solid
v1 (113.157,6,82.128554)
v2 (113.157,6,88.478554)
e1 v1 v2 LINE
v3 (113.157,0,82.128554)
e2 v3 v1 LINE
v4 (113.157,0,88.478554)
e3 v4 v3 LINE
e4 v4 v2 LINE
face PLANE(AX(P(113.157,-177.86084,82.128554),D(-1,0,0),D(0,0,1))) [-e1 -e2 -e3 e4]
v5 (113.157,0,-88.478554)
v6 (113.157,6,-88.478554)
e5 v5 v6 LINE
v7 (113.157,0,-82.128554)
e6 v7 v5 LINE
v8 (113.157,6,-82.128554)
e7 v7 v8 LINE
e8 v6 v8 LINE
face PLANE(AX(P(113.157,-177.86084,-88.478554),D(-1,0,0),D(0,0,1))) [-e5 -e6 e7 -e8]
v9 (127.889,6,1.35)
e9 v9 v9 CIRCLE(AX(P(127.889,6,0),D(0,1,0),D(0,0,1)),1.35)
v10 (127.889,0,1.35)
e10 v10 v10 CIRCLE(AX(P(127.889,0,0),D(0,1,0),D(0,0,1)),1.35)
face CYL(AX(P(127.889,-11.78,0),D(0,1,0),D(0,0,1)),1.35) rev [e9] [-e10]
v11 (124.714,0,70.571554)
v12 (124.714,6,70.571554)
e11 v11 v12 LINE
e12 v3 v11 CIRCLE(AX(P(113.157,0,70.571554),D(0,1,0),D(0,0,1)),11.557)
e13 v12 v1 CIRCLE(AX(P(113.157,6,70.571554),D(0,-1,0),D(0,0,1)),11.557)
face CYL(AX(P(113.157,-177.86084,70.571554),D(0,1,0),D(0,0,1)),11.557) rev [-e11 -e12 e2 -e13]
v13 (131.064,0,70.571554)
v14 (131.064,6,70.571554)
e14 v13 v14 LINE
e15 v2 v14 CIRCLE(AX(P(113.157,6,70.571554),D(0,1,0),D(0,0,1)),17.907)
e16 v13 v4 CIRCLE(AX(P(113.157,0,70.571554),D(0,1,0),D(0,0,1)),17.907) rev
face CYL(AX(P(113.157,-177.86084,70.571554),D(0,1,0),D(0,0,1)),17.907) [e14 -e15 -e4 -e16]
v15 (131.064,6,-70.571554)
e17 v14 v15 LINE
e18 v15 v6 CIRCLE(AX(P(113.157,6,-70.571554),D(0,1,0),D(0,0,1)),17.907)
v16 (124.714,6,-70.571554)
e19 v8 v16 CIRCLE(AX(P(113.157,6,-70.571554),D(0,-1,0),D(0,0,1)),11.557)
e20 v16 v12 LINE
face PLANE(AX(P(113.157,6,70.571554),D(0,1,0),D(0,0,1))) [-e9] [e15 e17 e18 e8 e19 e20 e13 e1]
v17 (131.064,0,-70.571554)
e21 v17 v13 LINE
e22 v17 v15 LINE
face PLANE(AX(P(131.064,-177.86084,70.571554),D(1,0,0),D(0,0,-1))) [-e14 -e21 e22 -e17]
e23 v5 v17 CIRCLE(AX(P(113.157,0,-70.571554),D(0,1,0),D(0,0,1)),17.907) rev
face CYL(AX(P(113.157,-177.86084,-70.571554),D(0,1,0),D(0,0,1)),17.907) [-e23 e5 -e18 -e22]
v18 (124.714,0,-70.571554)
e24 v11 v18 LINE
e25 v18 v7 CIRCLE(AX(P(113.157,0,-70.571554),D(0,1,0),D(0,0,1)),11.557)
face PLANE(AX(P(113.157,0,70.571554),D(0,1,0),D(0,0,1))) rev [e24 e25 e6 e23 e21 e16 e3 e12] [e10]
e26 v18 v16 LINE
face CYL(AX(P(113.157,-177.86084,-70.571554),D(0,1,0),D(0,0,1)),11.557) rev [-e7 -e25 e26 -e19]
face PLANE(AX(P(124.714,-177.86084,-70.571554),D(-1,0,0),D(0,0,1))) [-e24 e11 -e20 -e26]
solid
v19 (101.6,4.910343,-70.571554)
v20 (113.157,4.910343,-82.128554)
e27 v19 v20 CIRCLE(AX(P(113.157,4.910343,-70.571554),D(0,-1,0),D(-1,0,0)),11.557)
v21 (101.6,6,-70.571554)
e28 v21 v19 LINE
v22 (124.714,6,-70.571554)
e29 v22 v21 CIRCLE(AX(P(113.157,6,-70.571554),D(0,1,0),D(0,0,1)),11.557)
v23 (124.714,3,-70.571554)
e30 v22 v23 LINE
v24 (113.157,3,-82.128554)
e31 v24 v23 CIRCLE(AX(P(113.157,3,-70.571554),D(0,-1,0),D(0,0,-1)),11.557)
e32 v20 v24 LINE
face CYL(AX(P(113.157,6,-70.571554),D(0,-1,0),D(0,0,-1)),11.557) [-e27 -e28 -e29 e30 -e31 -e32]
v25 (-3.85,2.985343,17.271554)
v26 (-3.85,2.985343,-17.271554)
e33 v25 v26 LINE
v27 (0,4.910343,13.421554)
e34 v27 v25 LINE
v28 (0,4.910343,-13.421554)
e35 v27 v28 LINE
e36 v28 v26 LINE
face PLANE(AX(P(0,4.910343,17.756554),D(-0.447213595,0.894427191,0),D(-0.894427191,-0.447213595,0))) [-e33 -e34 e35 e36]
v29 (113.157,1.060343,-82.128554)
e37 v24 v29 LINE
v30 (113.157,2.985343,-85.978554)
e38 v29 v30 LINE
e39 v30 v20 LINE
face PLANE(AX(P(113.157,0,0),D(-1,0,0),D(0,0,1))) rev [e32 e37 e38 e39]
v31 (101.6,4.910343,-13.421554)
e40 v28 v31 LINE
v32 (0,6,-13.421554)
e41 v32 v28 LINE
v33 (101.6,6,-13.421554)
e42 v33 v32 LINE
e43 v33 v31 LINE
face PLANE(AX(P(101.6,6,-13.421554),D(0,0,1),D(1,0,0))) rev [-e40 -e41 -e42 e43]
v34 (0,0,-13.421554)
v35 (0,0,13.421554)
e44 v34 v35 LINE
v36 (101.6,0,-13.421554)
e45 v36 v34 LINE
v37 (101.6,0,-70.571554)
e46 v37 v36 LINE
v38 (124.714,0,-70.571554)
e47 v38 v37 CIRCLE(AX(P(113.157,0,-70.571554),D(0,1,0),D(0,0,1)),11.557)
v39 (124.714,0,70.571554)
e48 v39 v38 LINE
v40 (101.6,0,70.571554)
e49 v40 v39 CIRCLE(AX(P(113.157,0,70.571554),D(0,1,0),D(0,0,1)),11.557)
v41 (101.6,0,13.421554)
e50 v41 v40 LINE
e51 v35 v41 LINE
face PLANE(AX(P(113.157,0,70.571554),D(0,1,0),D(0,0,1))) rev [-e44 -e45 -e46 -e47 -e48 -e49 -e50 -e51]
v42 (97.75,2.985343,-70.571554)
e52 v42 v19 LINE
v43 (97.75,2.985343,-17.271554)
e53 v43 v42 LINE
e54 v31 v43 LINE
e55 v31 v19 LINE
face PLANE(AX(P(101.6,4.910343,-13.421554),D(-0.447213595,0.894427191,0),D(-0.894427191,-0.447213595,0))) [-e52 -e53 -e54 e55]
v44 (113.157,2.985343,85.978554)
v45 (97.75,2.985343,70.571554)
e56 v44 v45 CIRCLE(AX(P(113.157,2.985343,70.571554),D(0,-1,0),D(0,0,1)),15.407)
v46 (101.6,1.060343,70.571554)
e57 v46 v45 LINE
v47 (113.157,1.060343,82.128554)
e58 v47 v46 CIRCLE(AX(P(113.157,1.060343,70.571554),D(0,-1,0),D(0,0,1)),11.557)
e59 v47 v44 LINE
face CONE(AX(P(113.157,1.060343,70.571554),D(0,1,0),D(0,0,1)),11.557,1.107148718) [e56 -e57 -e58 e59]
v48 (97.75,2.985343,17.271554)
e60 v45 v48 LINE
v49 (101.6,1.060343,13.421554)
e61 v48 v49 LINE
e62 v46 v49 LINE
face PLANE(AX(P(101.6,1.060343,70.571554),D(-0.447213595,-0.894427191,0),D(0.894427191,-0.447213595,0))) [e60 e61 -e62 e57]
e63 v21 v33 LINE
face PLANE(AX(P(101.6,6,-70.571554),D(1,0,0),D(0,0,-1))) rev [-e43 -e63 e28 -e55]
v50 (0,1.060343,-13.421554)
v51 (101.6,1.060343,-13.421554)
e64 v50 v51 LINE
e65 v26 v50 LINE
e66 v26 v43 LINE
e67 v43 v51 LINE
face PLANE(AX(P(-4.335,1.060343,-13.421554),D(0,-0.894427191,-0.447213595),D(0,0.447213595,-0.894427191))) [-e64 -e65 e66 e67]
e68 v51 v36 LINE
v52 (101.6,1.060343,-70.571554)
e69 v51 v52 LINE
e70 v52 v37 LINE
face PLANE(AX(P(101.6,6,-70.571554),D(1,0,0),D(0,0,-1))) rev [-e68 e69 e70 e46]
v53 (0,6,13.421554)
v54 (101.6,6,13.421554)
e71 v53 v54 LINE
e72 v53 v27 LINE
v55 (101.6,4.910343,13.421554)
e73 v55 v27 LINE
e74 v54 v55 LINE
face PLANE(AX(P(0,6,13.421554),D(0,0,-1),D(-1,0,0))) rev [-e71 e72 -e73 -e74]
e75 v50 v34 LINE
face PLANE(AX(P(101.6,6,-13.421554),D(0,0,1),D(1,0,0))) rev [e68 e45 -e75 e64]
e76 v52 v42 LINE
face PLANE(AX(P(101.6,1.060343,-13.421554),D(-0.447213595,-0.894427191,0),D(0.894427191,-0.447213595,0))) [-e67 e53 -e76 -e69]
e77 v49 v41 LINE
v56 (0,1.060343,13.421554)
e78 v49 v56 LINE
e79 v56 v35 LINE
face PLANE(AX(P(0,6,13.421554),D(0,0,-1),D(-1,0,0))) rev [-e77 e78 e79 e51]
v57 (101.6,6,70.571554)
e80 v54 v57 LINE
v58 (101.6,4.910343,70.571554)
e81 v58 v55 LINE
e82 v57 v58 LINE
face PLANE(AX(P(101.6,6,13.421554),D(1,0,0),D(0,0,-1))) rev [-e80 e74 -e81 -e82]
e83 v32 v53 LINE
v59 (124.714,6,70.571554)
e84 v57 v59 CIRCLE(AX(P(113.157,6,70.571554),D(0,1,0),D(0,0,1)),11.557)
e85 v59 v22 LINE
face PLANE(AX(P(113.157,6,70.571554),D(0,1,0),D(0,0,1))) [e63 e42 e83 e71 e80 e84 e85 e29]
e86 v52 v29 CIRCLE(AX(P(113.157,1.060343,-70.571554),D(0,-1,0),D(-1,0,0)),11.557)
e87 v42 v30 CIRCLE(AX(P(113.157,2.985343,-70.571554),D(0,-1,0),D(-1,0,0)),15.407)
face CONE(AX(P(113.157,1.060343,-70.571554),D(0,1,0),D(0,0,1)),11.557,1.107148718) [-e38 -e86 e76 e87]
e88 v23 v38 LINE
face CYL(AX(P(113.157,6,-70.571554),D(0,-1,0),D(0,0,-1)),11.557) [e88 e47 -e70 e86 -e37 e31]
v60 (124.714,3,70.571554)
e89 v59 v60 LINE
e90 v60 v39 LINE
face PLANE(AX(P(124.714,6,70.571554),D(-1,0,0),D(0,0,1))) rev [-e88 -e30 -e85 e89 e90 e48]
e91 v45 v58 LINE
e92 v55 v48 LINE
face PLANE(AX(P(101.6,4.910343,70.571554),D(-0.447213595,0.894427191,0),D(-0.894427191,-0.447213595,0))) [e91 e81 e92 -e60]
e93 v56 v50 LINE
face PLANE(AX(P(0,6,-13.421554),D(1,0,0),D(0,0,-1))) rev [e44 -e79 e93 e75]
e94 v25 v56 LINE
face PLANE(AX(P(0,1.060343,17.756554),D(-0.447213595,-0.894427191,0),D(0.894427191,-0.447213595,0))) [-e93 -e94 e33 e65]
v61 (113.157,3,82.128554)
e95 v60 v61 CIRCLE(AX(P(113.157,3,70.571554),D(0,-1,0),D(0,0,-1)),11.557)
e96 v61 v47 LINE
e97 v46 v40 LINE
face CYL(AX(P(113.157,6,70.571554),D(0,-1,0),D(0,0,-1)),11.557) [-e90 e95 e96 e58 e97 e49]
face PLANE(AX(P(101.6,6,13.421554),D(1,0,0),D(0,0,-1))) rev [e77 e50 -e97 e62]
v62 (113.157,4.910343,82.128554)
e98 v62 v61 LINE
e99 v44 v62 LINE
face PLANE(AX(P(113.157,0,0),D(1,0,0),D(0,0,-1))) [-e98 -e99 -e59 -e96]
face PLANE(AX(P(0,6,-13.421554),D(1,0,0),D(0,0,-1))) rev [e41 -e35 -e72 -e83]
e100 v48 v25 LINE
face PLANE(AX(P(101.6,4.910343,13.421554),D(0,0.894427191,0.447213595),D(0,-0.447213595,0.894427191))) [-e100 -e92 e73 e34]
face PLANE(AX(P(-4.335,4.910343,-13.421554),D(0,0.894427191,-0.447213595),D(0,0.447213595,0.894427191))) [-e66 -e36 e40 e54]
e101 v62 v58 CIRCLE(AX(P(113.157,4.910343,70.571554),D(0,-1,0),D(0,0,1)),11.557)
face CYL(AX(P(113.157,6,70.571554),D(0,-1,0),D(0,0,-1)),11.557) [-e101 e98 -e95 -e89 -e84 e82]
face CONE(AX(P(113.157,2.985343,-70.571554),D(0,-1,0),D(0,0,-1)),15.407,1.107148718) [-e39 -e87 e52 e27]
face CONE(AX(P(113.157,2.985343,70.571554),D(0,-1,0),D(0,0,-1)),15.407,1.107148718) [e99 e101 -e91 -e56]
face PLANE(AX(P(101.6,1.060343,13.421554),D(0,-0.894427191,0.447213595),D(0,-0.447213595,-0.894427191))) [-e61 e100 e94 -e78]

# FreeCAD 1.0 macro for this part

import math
import FreeCAD as App
import Part
import Sketcher
Q = App.Units.Quantity


def add_polygon(sketch, points):
    """Adds a closed chain of lines whose ends are joined by coincident constraints."""
    first, n = sketch.GeometryCount, len(points)
    for a, b in zip(points, points[1:] + points[:1]):
        sketch.addGeometry(Part.LineSegment(App.Vector(*a, 0), App.Vector(*b, 0)), False)
    for i in range(n):
        sketch.addConstraint(Sketcher.Constraint("Coincident", first + i, 2, first + (i + 1) % n, 1))

doc = App.newDocument("Part")
body = doc.addObject("PartDesign::Body", "Body")

sketch1 = body.newObject("Sketcher::SketchObject", "Sketch")
sketch1.AttachmentSupport = (doc.getObject("XZ_Plane"), [""])
sketch1.MapMode = "FlatFace"
sketch1.addGeometry(Part.LineSegment(App.Vector(0, 13, 0), App.Vector(102, 13, 0)), False)
sketch1.addGeometry(Part.LineSegment(App.Vector(102, 13, 0), App.Vector(102, 71, 0)), False)
sketch1.addGeometry(Part.ArcOfCircle(Part.Circle(App.Vector(113, 71, 0), App.Vector(0, 0, 1), 12), math.radians(0), math.radians(180)), False)
sketch1.addGeometry(Part.LineSegment(App.Vector(125, 71, 0), App.Vector(125, -71, 0)), False)
sketch1.addGeometry(Part.ArcOfCircle(Part.Circle(App.Vector(113, -71, 0), App.Vector(0, 0, 1), 12), math.radians(180), math.radians(360)), False)
sketch1.addGeometry(Part.LineSegment(App.Vector(102, -71, 0), App.Vector(102, -13, 0)), False)
sketch1.addGeometry(Part.LineSegment(App.Vector(102, -13, 0), App.Vector(0, -13, 0)), False)
sketch1.addGeometry(Part.LineSegment(App.Vector(0, -13, 0), App.Vector(0, 13, 0)), False)
sketch1.addConstraint(Sketcher.Constraint("Coincident", 0, 2, 1, 1))
sketch1.addConstraint(Sketcher.Constraint("Tangent", 1, 2, 2, 2))
sketch1.addConstraint(Sketcher.Constraint("Tangent", 2, 1, 3, 1))
sketch1.addConstraint(Sketcher.Constraint("Tangent", 3, 2, 4, 2))
sketch1.addConstraint(Sketcher.Constraint("Tangent", 4, 1, 5, 1))
sketch1.addConstraint(Sketcher.Constraint("Coincident", 5, 2, 6, 1))
sketch1.addConstraint(Sketcher.Constraint("Coincident", 6, 2, 7, 1))
sketch1.addConstraint(Sketcher.Constraint("Coincident", 7, 2, 0, 1))
sketch1.addConstraint(Sketcher.Constraint("Horizontal", 0))
sketch1.addConstraint(Sketcher.Constraint("Vertical", 1))
sketch1.addConstraint(Sketcher.Constraint("Vertical", 3))
sketch1.addConstraint(Sketcher.Constraint("Vertical", 5))
sketch1.addConstraint(Sketcher.Constraint("Horizontal", 6))
sketch1.addConstraint(Sketcher.Constraint("Vertical", 7))
sketch1.addConstraint(Sketcher.Constraint("Equal", 2, 4))
sketch1.addConstraint(Sketcher.Constraint("Symmetric", 6, 2, 7, 2, -1, 1))
sketch1.addConstraint(Sketcher.Constraint("Equal", 1, 5))
sketch1.addConstraint(Sketcher.Constraint("DistanceX", 0, 1, 0, 2, Q("4 in")))
sketch1.addConstraint(Sketcher.Constraint("Radius", 2, Q("0.455 in")))
sketch1.addConstraint(Sketcher.Constraint("DistanceY", 1, 1, 1, 2, Q("2.25 in")))
sketch1.addConstraint(Sketcher.Constraint("DistanceY", 3, 2, 3, 1, Q("141.143107 mm")))
pad1 = body.newObject("PartDesign::Pad", "Pad")
pad1.Profile = sketch1
pad1.Length = 6
pad1.Reversed = True

sketch2 = body.newObject("Sketcher::SketchObject", "Sketch001")
sketch2.AttachmentSupport = (doc.getObject("YZ_Plane"), [""])
sketch2.MapMode = "FlatFace"
sketch2.AttachmentOffset = App.Placement(App.Vector(0, 0, 4.455 * 25.4), App.Rotation())
add_polygon(sketch2, [(4.9, -82.1), (1.1, -82.1), (3, -86)])
sketch2.addConstraint(Sketcher.Constraint("Horizontal", 0))
sketch2.addConstraint(Sketcher.Constraint("Equal", 1, 2))
sketch2.addConstraint(Sketcher.Constraint("DistanceX", 0, 2, 0, 1, Q("3.85 mm")))
sketch2.addConstraint(Sketcher.Constraint("DistanceY", 1, 2, 0, 2, Q("3.85 mm")))
sketch2.addConstraint(Sketcher.Constraint("DistanceX", -1, 1, 0, 2, Q("1.060343 mm")))
sketch2.addConstraint(Sketcher.Constraint("DistanceY", 0, 2, -1, 1, Q("82.128554 mm")))

sketch3 = body.newObject("Sketcher::SketchObject", "Sketch002")
sketch3.AttachmentSupport = (doc.getObject("XZ_Plane"), [""])
sketch3.MapMode = "FlatFace"
sketch3.AttachmentOffset = App.Placement(App.Vector(0, 0, -3), App.Rotation())
sketch3.addGeometry(Part.ArcOfCircle(Part.Circle(App.Vector(113, 71, 0), App.Vector(0, 0, 1), 12), math.radians(90), math.radians(180)), False)
sketch3.addGeometry(Part.LineSegment(App.Vector(102, 71, 0), App.Vector(102, 13, 0)), False)
sketch3.addGeometry(Part.LineSegment(App.Vector(102, 13, 0), App.Vector(0, 13, 0)), False)
sketch3.addGeometry(Part.LineSegment(App.Vector(0, 13, 0), App.Vector(0, -13, 0)), False)
sketch3.addGeometry(Part.LineSegment(App.Vector(0, -13, 0), App.Vector(102, -13, 0)), False)
sketch3.addGeometry(Part.LineSegment(App.Vector(102, -13, 0), App.Vector(102, -71, 0)), False)
sketch3.addGeometry(Part.ArcOfCircle(Part.Circle(App.Vector(113, -71, 0), App.Vector(0, 0, 1), 12), math.radians(-180), math.radians(-90)), False)
sketch3.addConstraint(Sketcher.Constraint("Tangent", 0, 2, 1, 1))
sketch3.addConstraint(Sketcher.Constraint("Coincident", 1, 2, 2, 1))
sketch3.addConstraint(Sketcher.Constraint("Coincident", 2, 2, 3, 1))
sketch3.addConstraint(Sketcher.Constraint("Coincident", 3, 2, 4, 1))
sketch3.addConstraint(Sketcher.Constraint("Coincident", 4, 2, 5, 1))
sketch3.addConstraint(Sketcher.Constraint("Tangent", 5, 2, 6, 1))
sketch3.addConstraint(Sketcher.Constraint("Vertical", 1))
sketch3.addConstraint(Sketcher.Constraint("Horizontal", 2))
sketch3.addConstraint(Sketcher.Constraint("Vertical", 3))
sketch3.addConstraint(Sketcher.Constraint("Horizontal", 4))
sketch3.addConstraint(Sketcher.Constraint("Vertical", 5))
sketch3.addConstraint(Sketcher.Constraint("Equal", 0, 6))
sketch3.addConstraint(Sketcher.Constraint("Symmetric", 2, 2, 3, 2, -1, 1))
sketch3.addConstraint(Sketcher.Constraint("Symmetric", 0, 3, 6, 3, -1))
sketch3.addConstraint(Sketcher.Constraint("Vertical", 6, 3, 0, 1))
sketch3.addConstraint(Sketcher.Constraint("Vertical", 0, 1, 6, 2))
sketch3.addConstraint(Sketcher.Constraint("DistanceX", 2, 2, 2, 1, Q("4 in")))
sketch3.addConstraint(Sketcher.Constraint("Radius", 0, Q("0.455 in")))
sketch3.addConstraint(Sketcher.Constraint("DistanceY", 1, 2, 1, 1, Q("2.25 in")))
sketch3.addConstraint(Sketcher.Constraint("DistanceY", 3, 2, 3, 1, Q("26.843107 mm")))
doc.recompute()

additivepipe = body.newObject("PartDesign::AdditivePipe", "AdditivePipe")
additivepipe.Profile = sketch2
additivepipe.Spine = (sketch3, ["Edge1", "Edge2", "Edge3", "Edge4", "Edge5", "Edge6", "Edge7"])
additivepipe.Transition = "Right corner"
body2 = doc.addObject("PartDesign::Body", "Body001")

sketch4 = body2.newObject("Sketcher::SketchObject", "Sketch003")
sketch4.AttachmentSupport = (doc.getObject("XZ_Plane001"), [""])
sketch4.MapMode = "FlatFace"
sketch4.AttachmentOffset = App.Placement(App.Vector(0, 0, -6), App.Rotation())
sketch4.addGeometry(Part.LineSegment(App.Vector(131, 71, 0), App.Vector(131, -71, 0)), False)
sketch4.addGeometry(Part.ArcOfCircle(Part.Circle(App.Vector(113, -71, 0), App.Vector(0, 0, 1), 18), math.radians(-90), math.radians(0)), False)
sketch4.addGeometry(Part.LineSegment(App.Vector(113, -88, 0), App.Vector(113, -82, 0)), False)
sketch4.addGeometry(Part.ArcOfCircle(Part.Circle(App.Vector(113, -71, 0), App.Vector(0, 0, 1), 12), math.radians(-90), math.radians(0)), False)
sketch4.addGeometry(Part.LineSegment(App.Vector(125, -71, 0), App.Vector(125, 71, 0)), False)
sketch4.addGeometry(Part.ArcOfCircle(Part.Circle(App.Vector(113, 71, 0), App.Vector(0, 0, 1), 12), math.radians(0), math.radians(90)), False)
sketch4.addGeometry(Part.LineSegment(App.Vector(113, 82, 0), App.Vector(113, 88, 0)), False)
sketch4.addGeometry(Part.ArcOfCircle(Part.Circle(App.Vector(113, 71, 0), App.Vector(0, 0, 1), 18), math.radians(0), math.radians(90)), False)
sketch4.addConstraint(Sketcher.Constraint("Tangent", 0, 2, 1, 2))
sketch4.addConstraint(Sketcher.Constraint("Coincident", 1, 1, 2, 1))
sketch4.addConstraint(Sketcher.Constraint("Coincident", 2, 2, 3, 1))
sketch4.addConstraint(Sketcher.Constraint("Tangent", 3, 2, 4, 1))
sketch4.addConstraint(Sketcher.Constraint("Tangent", 4, 2, 5, 1))
sketch4.addConstraint(Sketcher.Constraint("Coincident", 5, 2, 6, 1))
sketch4.addConstraint(Sketcher.Constraint("Coincident", 6, 2, 7, 2))
sketch4.addConstraint(Sketcher.Constraint("Tangent", 7, 1, 0, 1))
sketch4.addConstraint(Sketcher.Constraint("Vertical", 0))
sketch4.addConstraint(Sketcher.Constraint("Vertical", 2))
sketch4.addConstraint(Sketcher.Constraint("Vertical", 4))
sketch4.addConstraint(Sketcher.Constraint("Vertical", 6))
sketch4.addConstraint(Sketcher.Constraint("Coincident", 3, 3, 1, 3))
sketch4.addConstraint(Sketcher.Constraint("Coincident", 7, 3, 5, 3))
sketch4.addConstraint(Sketcher.Constraint("Equal", 3, 5))
sketch4.addConstraint(Sketcher.Constraint("Symmetric", 2, 2, 5, 2, -1))
sketch4.addConstraint(Sketcher.Constraint("Vertical", 7, 3, 1, 1))
sketch4.addConstraint(Sketcher.Constraint("Radius", 1, Q("0.705 in")))
sketch4.addConstraint(Sketcher.Constraint("Radius", 3, Q("0.455 in")))
sketch4.addConstraint(Sketcher.Constraint("DistanceX", -1, 1, 0, 2, Q("5.16 in")))
sketch4.addConstraint(Sketcher.Constraint("DistanceY", 0, 2, 0, 1, Q("141.143107 mm")))
pad2 = body2.newObject("PartDesign::Pad", "Pad001")
pad2.Profile = sketch4
pad2.Length = 6

sketch5 = body2.newObject("Sketcher::SketchObject", "Sketch004")
sketch5.AttachmentSupport = (doc.getObject("XZ_Plane001"), [""])
sketch5.MapMode = "FlatFace"
sketch5.AttachmentOffset = App.Placement(App.Vector(0, 0, -6), App.Rotation())
sketch5.addGeometry(Part.Circle(App.Vector(127.9, 0, 0), App.Vector(0, 0, 1), 1.4), False)
sketch5.addConstraint(Sketcher.Constraint("PointOnObject", 0, 3, -1))
sketch5.addConstraint(Sketcher.Constraint("Diameter", 0, Q("2.7 mm")))
sketch5.addConstraint(Sketcher.Constraint("DistanceX", -1, 1, 0, 3, Q("5.035 in")))
pocket1 = body2.newObject("PartDesign::Pocket", "Pocket")
pocket1.Profile = sketch5
pocket1.Length = Q("0.7 in")
pocket1.Reversed = True

doc.recompute()
